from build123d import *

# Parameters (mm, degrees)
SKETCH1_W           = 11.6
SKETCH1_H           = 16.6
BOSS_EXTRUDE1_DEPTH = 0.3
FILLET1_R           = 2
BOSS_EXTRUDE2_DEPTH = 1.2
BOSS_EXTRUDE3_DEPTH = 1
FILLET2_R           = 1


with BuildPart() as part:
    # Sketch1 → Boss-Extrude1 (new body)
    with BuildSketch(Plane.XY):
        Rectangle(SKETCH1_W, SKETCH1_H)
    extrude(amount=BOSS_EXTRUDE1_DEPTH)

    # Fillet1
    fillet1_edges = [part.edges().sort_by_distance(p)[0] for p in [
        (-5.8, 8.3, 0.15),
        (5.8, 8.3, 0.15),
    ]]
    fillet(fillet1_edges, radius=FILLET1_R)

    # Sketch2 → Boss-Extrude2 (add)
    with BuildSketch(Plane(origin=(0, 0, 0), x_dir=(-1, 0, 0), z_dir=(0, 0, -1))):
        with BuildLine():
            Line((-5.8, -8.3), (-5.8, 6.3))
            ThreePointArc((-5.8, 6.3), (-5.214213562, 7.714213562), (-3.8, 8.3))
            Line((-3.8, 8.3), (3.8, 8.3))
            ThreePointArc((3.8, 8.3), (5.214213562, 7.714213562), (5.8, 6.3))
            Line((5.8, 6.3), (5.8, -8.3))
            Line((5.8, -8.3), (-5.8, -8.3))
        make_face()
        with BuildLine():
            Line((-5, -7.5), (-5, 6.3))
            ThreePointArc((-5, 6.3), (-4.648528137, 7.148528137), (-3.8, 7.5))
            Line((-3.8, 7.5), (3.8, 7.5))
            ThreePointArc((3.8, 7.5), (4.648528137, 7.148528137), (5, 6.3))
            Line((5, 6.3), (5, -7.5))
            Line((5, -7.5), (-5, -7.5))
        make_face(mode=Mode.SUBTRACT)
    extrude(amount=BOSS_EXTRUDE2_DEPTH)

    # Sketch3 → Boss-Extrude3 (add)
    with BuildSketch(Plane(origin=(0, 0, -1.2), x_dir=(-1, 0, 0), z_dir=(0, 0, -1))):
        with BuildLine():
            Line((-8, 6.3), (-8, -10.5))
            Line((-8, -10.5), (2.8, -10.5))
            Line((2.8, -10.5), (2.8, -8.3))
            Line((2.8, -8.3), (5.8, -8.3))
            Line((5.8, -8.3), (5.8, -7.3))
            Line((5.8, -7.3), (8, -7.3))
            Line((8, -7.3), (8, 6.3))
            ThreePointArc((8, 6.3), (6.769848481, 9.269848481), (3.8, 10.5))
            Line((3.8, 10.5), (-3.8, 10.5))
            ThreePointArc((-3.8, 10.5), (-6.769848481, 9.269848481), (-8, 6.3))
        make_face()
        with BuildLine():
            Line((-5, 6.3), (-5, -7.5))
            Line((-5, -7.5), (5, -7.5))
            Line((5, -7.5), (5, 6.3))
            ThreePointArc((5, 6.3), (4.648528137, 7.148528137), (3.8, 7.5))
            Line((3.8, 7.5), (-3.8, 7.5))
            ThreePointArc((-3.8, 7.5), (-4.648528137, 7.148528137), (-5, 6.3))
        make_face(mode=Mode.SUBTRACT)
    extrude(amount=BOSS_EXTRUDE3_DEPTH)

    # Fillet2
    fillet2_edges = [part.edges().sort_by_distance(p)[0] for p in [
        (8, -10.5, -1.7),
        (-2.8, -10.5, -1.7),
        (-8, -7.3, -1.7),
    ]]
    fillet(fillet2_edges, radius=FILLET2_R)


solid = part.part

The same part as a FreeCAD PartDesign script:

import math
import FreeCAD as App
import Part
import Sketcher

V = App.Vector
Q = App.Units.Quantity


def edges_at(feature, points):
    """Names of the edges that pass closest to the given points."""
    edges = feature.Shape.Edges
    near = lambda p: min(range(len(edges)), key=lambda i: edges[i].distToShape(Part.Vertex(*p))[0])
    return sorted({f"Edge{near(p) + 1}" for p in points})

doc = App.newDocument("Part")
body = doc.addObject("PartDesign::Body", "Body")

# Sketch on XY plane
sketch1 = body.newObject("Sketcher::SketchObject", "Sketch")
sketch1.AttachmentSupport = (doc.getObject("XY_Plane"), [""])
sketch1.MapMode = "FlatFace"
sketch1.addGeometry([
    Part.LineSegment(V(-6, 8, 0), V(-6, -8, 0)),
    Part.LineSegment(V(-6, -8, 0), V(6, -8, 0)),
    Part.LineSegment(V(6, -8, 0), V(6, 8, 0)),
    Part.LineSegment(V(6, 8, 0), V(-6, 8, 0)),
], False)
sketch1.addConstraint([
    Sketcher.Constraint("Coincident", 0, 2, 1, 1),
    Sketcher.Constraint("Coincident", 1, 2, 2, 1),
    Sketcher.Constraint("Coincident", 2, 2, 3, 1),
    Sketcher.Constraint("Coincident", 3, 2, 0, 1),
    Sketcher.Constraint("Vertical", 0),
    Sketcher.Constraint("Horizontal", 1),
    Sketcher.Constraint("Vertical", 2),
    Sketcher.Constraint("Horizontal", 3),
    Sketcher.Constraint("Symmetric", 0, 2, 2, 2, -1, 1),
    Sketcher.Constraint("DistanceX", 1, 1, 1, 2, Q("11.6 mm")),
    Sketcher.Constraint("DistanceY", 0, 2, 0, 1, Q("16.6 mm")),
])
pad1 = body.newObject("PartDesign::Pad", "Pad")
pad1.Profile = sketch1
pad1.Length = 0.3
doc.recompute()

fillet = body.newObject("PartDesign::Fillet", "Fillet")
fillet.Base = (pad1, edges_at(pad1, [(-5.8, 8.3, 0.15), (5.8, 8.3, 0.15)]))
fillet.Radius = 2

# Sketch on XY plane
sketch2 = body.newObject("Sketcher::SketchObject", "Sketch001")
sketch2.AttachmentSupport = (doc.getObject("XY_Plane"), [""])
sketch2.MapMode = "FlatFace"
sketch2.addGeometry([
    Part.LineSegment(V(5.8, 6.3, 0), V(5.8, -8.3, 0)),  # 0
    Part.LineSegment(V(5.8, -8.3, 0), V(-5.8, -8.3, 0)),  # 1
    Part.LineSegment(V(-5.8, -8.3, 0), V(-5.8, 6.3, 0)),  # 2
    Part.ArcOfCircle(Part.Circle(V(-3.8, 6.3, 0), V(0, 0, 1), 2), math.radians(90), math.radians(180)),  # 3
    Part.LineSegment(V(-3.8, 8.3, 0), V(3.8, 8.3, 0)),  # 4
    Part.ArcOfCircle(Part.Circle(V(3.8, 6.3, 0), V(0, 0, 1), 2), math.radians(0), math.radians(90)),  # 5
    Part.LineSegment(V(5, -7.5, 0), V(5, 6.3, 0)),  # 6
    Part.ArcOfCircle(Part.Circle(V(3.8, 6.3, 0), V(0, 0, 1), 1.2), math.radians(0), math.radians(90)),  # 7
    Part.LineSegment(V(3.8, 7.5, 0), V(-3.8, 7.5, 0)),  # 8
    Part.ArcOfCircle(Part.Circle(V(-3.8, 6.3, 0), V(0, 0, 1), 1.2), math.radians(90), math.radians(180)),  # 9
    Part.LineSegment(V(-5, 6.3, 0), V(-5, -7.5, 0)),  # 10
    Part.LineSegment(V(-5, -7.5, 0), V(5, -7.5, 0)),  # 11
], False)
sketch2.addConstraint([
    Sketcher.Constraint("Coincident", 0, 2, 1, 1),
    Sketcher.Constraint("Coincident", 1, 2, 2, 1),
    Sketcher.Constraint("Tangent", 2, 2, 3, 2),
    Sketcher.Constraint("Tangent", 3, 1, 4, 1),
    Sketcher.Constraint("Tangent", 4, 2, 5, 2),
    Sketcher.Constraint("Tangent", 5, 1, 0, 1),
    Sketcher.Constraint("Tangent", 6, 2, 7, 1),
    Sketcher.Constraint("Tangent", 7, 2, 8, 1),
    Sketcher.Constraint("Tangent", 8, 2, 9, 1),
    Sketcher.Constraint("Tangent", 9, 2, 10, 1),
    Sketcher.Constraint("Coincident", 10, 2, 11, 1),
    Sketcher.Constraint("Coincident", 11, 2, 6, 1),
    Sketcher.Constraint("Vertical", 0),
    Sketcher.Constraint("Horizontal", 1),
    Sketcher.Constraint("Vertical", 2),
    Sketcher.Constraint("Horizontal", 4),
    Sketcher.Constraint("Vertical", 6),
    Sketcher.Constraint("Horizontal", 8),
    Sketcher.Constraint("Vertical", 10),
    Sketcher.Constraint("Horizontal", 11),
    Sketcher.Constraint("Coincident", 7, 3, 5, 3),
    Sketcher.Constraint("Coincident", 9, 3, 3, 3),
    Sketcher.Constraint("Equal", 3, 5),
    Sketcher.Constraint("Radius", 3, Q("2 mm")),
    Sketcher.Constraint("Radius", 7, Q("1.2 mm")),
    Sketcher.Constraint("DistanceX", 11, 1, 11, 2, Q("10 mm")),
    Sketcher.Constraint("DistanceY", 0, 2, 0, 1, Q("14.6 mm")),
    Sketcher.Constraint("DistanceY", 6, 1, 6, 2, Q("13.8 mm")),
    Sketcher.Constraint("DistanceX", -1, 1, 6, 2, Q("5 mm")),
    Sketcher.Constraint("DistanceY", -1, 1, 3, 3, Q("6.3 mm")),
])
pad2 = body.newObject("PartDesign::Pad", "Pad001")
pad2.Profile = sketch2
pad2.Length = 1.2
pad2.Reversed = True

# Sketch on XY plane
sketch3 = body.newObject("Sketcher::SketchObject", "Sketch002")
sketch3.AttachmentSupport = (doc.getObject("XY_Plane"), [""])
sketch3.MapMode = "FlatFace"
sketch3.AttachmentOffset = App.Placement(V(0, 0, -1.2), App.Rotation())
sketch3.addGeometry([
    Part.LineSegment(V(8, 6.3, 0), V(8, -10.5, 0)),  # 0
    Part.LineSegment(V(8, -10.5, 0), V(-2.8, -10.5, 0)),  # 1
    Part.LineSegment(V(-2.8, -10.5, 0), V(-2.8, -8.3, 0)),  # 2
    Part.LineSegment(V(-2.8, -8.3, 0), V(-5.8, -8.3, 0)),  # 3
    Part.LineSegment(V(-5.8, -8.3, 0), V(-5.8, -7.3, 0)),  # 4
    Part.LineSegment(V(-5.8, -7.3, 0), V(-8, -7.3, 0)),  # 5
    Part.LineSegment(V(-8, -7.3, 0), V(-8, 6.3, 0)),  # 6
    Part.ArcOfCircle(Part.Circle(V(-3.8, 6.3, 0), V(0, 0, 1), 4.2), math.radians(90), math.radians(180)),  # 7
    Part.LineSegment(V(-3.8, 10.5, 0), V(3.8, 10.5, 0)),  # 8
    Part.ArcOfCircle(Part.Circle(V(3.8, 6.3, 0), V(0, 0, 1), 4.2), math.radians(0), math.radians(90)),  # 9
    Part.LineSegment(V(5, -7.5, 0), V(5, 6.3, 0)),  # 10
    Part.ArcOfCircle(Part.Circle(V(3.8, 6.3, 0), V(0, 0, 1), 1.2), math.radians(0), math.radians(90)),  # 11
    Part.LineSegment(V(3.8, 7.5, 0), V(-3.8, 7.5, 0)),  # 12
    Part.ArcOfCircle(Part.Circle(V(-3.8, 6.3, 0), V(0, 0, 1), 1.2), math.radians(90), math.radians(180)),  # 13
    Part.LineSegment(V(-5, 6.3, 0), V(-5, -7.5, 0)),  # 14
    Part.LineSegment(V(-5, -7.5, 0), V(5, -7.5, 0)),  # 15
], False)
sketch3.addConstraint([
    Sketcher.Constraint("Coincident", 0, 2, 1, 1),
    Sketcher.Constraint("Coincident", 1, 2, 2, 1),
    Sketcher.Constraint("Coincident", 2, 2, 3, 1),
    Sketcher.Constraint("Coincident", 3, 2, 4, 1),
    Sketcher.Constraint("Coincident", 4, 2, 5, 1),
    Sketcher.Constraint("Coincident", 5, 2, 6, 1),
    Sketcher.Constraint("Tangent", 6, 2, 7, 2),
    Sketcher.Constraint("Tangent", 7, 1, 8, 1),
    Sketcher.Constraint("Tangent", 8, 2, 9, 2),
    Sketcher.Constraint("Tangent", 9, 1, 0, 1),
    Sketcher.Constraint("Tangent", 10, 2, 11, 1),
    Sketcher.Constraint("Tangent", 11, 2, 12, 1),
    Sketcher.Constraint("Tangent", 12, 2, 13, 1),
    Sketcher.Constraint("Tangent", 13, 2, 14, 1),
    Sketcher.Constraint("Coincident", 14, 2, 15, 1),
    Sketcher.Constraint("Coincident", 15, 2, 10, 1),
    Sketcher.Constraint("Vertical", 0),
    Sketcher.Constraint("Horizontal", 1),
    Sketcher.Constraint("Vertical", 2),
    Sketcher.Constraint("Horizontal", 3),
    Sketcher.Constraint("Vertical", 4),
    Sketcher.Constraint("Horizontal", 5),
    Sketcher.Constraint("Vertical", 6),
    Sketcher.Constraint("Horizontal", 8),
    Sketcher.Constraint("Vertical", 10),
    Sketcher.Constraint("Horizontal", 12),
    Sketcher.Constraint("Vertical", 14),
    Sketcher.Constraint("Horizontal", 15),
    Sketcher.Constraint("Coincident", 11, 3, 9, 3),
    Sketcher.Constraint("Coincident", 13, 3, 7, 3),
    Sketcher.Constraint("Equal", 7, 9),
    Sketcher.Constraint("Equal", 5, 2),
    Sketcher.Constraint("Radius", 7, Q("4.2 mm")),
    Sketcher.Constraint("Radius", 11, Q("1.2 mm")),
    Sketcher.Constraint("DistanceX", 3, 2, 3, 1, Q("3 mm")),
    Sketcher.Constraint("DistanceX", 15, 1, 15, 2, Q("10 mm")),
    Sketcher.Constraint("DistanceY", 4, 1, 4, 2, Q("1 mm")),
    Sketcher.Constraint("DistanceX", 1, 2, 1, 1, Q("10.8 mm")),
    Sketcher.Constraint("DistanceY", 0, 2, 0, 1, Q("16.8 mm")),
    Sketcher.Constraint("DistanceY", 10, 1, 10, 2, Q("13.8 mm")),
    Sketcher.Constraint("DistanceX", -1, 1, 0, 2, Q("8 mm")),
    Sketcher.Constraint("DistanceY", -1, 1, 7, 3, Q("6.3 mm")),
])
pad3 = body.newObject("PartDesign::Pad", "Pad002")
pad3.Profile = sketch3
pad3.Length = 1
pad3.Reversed = True
doc.recompute()

fillet2 = body.newObject("PartDesign::Fillet", "Fillet001")
fillet2.Base = (pad3, edges_at(pad3, [(8, -10.5, -1.7), (-2.8, -10.5, -1.7), (-8, -7.3, -1.7)]))
fillet2.Radius = 1

doc.recompute()
